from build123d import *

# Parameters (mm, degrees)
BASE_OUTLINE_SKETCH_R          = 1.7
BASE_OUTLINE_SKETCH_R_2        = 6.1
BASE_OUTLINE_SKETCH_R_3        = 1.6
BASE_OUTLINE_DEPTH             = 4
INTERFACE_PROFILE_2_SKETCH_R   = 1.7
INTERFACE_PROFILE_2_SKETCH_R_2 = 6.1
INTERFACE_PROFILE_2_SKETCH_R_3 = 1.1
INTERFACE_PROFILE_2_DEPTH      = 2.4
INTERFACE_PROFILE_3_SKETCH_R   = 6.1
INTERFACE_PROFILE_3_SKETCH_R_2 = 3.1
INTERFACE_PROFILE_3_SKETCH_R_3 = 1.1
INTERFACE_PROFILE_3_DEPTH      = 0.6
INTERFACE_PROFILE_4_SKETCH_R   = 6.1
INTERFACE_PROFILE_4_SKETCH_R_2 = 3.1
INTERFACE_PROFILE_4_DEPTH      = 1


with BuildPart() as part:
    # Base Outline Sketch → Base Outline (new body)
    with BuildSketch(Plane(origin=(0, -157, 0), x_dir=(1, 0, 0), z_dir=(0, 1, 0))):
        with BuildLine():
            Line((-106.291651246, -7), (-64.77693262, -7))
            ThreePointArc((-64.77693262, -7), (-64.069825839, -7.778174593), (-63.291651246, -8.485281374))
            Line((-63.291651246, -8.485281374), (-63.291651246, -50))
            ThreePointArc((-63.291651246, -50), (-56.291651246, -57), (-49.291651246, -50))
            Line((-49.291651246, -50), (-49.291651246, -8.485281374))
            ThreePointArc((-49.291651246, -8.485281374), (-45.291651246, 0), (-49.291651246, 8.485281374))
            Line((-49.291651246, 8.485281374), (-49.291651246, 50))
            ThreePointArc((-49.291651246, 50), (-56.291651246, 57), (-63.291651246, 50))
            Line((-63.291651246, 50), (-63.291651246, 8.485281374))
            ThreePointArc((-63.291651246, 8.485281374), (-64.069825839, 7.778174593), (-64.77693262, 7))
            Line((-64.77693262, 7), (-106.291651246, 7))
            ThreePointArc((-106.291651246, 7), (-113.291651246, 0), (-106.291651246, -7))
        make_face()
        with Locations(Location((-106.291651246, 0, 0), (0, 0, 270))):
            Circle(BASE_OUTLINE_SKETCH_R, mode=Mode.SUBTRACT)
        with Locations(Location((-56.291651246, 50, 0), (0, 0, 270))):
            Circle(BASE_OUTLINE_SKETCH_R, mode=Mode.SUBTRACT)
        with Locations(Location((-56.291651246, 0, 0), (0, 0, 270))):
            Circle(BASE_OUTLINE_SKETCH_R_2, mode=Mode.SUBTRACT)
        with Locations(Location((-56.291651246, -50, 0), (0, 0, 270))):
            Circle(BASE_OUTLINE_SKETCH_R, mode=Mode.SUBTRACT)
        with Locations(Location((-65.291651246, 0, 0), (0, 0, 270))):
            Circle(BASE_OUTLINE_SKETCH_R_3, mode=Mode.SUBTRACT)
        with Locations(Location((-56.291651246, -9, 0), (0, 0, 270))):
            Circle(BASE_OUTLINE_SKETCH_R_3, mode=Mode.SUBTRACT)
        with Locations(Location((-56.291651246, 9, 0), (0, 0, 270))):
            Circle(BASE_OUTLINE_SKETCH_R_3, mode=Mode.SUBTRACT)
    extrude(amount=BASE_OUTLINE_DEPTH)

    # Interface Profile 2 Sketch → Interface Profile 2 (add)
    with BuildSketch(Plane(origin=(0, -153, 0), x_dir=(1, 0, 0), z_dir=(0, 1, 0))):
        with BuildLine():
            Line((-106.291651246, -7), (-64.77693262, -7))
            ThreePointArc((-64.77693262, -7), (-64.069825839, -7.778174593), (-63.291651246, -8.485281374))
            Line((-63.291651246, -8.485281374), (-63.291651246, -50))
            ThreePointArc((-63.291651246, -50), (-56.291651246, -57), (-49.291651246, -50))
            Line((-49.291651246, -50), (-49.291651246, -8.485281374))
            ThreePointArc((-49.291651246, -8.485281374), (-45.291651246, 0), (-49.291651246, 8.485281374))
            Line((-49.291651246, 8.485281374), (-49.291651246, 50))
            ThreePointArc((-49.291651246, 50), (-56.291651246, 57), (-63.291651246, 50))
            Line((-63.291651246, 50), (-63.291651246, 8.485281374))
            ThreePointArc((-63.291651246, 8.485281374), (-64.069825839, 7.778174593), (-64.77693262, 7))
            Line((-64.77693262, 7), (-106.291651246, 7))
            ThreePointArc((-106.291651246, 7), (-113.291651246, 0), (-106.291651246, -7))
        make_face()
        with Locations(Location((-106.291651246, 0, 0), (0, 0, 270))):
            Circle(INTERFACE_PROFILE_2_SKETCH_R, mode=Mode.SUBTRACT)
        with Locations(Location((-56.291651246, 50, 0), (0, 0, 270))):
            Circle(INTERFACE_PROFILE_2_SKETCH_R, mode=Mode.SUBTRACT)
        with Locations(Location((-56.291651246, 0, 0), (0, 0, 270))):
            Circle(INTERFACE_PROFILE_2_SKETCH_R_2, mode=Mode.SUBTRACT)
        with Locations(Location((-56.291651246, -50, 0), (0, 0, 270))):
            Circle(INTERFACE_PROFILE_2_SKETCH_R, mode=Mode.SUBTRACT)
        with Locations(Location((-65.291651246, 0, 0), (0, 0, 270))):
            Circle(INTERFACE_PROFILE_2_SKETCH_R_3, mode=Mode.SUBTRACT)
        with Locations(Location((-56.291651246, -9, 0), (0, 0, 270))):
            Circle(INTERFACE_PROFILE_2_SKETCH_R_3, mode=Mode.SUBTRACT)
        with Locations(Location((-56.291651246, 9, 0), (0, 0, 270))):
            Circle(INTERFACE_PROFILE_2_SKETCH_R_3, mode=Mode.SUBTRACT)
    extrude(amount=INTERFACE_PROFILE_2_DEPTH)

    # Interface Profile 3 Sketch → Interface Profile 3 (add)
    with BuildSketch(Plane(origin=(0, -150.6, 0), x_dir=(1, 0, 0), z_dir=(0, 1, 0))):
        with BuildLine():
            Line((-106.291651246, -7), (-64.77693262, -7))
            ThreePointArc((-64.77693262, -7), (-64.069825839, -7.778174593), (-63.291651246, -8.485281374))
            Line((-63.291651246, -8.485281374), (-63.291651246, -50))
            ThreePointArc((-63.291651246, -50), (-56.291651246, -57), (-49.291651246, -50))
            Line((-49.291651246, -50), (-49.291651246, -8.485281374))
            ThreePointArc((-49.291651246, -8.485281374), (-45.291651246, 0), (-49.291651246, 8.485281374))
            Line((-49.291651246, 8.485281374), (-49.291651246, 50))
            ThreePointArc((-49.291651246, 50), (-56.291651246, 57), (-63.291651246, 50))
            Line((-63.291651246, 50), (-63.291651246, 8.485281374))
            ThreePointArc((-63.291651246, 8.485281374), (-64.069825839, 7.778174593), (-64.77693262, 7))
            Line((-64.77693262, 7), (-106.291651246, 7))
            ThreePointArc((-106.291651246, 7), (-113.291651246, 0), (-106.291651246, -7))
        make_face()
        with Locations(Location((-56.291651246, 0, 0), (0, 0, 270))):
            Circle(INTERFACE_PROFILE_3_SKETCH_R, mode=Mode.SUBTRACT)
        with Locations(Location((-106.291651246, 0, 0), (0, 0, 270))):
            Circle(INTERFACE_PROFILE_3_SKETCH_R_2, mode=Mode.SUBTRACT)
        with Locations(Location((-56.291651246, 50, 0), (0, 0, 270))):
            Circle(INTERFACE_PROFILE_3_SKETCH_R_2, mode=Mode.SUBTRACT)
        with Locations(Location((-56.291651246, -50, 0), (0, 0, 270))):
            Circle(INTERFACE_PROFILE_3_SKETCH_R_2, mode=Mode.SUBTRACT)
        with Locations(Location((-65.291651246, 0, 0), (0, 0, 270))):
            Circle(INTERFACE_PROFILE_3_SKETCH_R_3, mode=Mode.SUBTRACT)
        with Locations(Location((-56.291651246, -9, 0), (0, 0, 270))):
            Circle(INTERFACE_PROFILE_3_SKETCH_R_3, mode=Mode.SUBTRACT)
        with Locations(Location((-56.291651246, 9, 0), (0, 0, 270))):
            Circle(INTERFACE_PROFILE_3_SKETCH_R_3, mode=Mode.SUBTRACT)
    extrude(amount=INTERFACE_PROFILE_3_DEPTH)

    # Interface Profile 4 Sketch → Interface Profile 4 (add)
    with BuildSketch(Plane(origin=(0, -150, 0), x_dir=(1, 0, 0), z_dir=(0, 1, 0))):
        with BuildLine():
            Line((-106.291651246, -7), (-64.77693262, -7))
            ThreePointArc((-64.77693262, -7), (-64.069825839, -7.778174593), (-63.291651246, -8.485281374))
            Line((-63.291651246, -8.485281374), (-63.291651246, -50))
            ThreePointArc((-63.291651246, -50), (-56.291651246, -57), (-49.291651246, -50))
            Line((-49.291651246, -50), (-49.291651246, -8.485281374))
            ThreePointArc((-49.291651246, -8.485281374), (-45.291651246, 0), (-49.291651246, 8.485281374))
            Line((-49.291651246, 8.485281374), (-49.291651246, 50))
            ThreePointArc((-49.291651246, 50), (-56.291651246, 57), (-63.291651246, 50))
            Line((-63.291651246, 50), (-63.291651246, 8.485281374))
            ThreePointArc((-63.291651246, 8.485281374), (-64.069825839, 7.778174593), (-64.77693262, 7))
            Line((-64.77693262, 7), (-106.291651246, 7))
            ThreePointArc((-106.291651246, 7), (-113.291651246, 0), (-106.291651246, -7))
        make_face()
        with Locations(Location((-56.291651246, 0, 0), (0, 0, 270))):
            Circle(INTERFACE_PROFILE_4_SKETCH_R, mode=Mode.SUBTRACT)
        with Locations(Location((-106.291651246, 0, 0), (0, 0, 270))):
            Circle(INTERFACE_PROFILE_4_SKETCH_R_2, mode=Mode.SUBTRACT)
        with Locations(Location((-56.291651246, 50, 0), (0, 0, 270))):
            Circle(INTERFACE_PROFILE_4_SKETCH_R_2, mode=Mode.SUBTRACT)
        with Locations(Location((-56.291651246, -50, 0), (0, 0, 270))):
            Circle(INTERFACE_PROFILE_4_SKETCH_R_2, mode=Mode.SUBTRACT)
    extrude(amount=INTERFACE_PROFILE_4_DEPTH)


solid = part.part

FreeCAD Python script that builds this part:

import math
import FreeCAD as App
import Part
import Sketcher
Q = App.Units.Quantity

doc = App.newDocument("Part")
body = doc.addObject("PartDesign::Body", "Body")

# Sketch on XZ plane
sketch1 = body.newObject("Sketcher::SketchObject", "Sketch")
sketch1.AttachmentSupport = (doc.getObject("XZ_Plane"), [""])
sketch1.MapMode = "FlatFace"
sketch1.AttachmentOffset = App.Placement(App.Vector(0, 0, 157), App.Rotation())
sketch1.addGeometry([
    Part.LineSegment(App.Vector(-106.291651, 7, 0), App.Vector(-64.776933, 7, 0)),  # 0
    Part.ArcOfCircle(Part.Circle(App.Vector(-56.291651, 0, 0), App.Vector(0, 0, 1), 11), math.radians(129.521196), math.radians(140.478804)),  # 1
    Part.LineSegment(App.Vector(-63.291651, 8.485281, 0), App.Vector(-63.291651, 50, 0)),  # 2
    Part.ArcOfCircle(Part.Circle(App.Vector(-56.291651, 50, 0), App.Vector(0, 0, 1), 7), math.radians(0), math.radians(180)),  # 3
    Part.LineSegment(App.Vector(-49.291651, 50, 0), App.Vector(-49.291651, 8.485281, 0)),  # 4
    Part.ArcOfCircle(Part.Circle(App.Vector(-56.291651, 0, 0), App.Vector(0, 0, 1), 11), math.radians(-50.478804), math.radians(50.478804)),  # 5
    Part.LineSegment(App.Vector(-49.291651, -8.485281, 0), App.Vector(-49.291651, -50, 0)),  # 6
    Part.ArcOfCircle(Part.Circle(App.Vector(-56.291651, -50, 0), App.Vector(0, 0, 1), 7), math.radians(180), math.radians(360)),  # 7
    Part.LineSegment(App.Vector(-63.291651, -50, 0), App.Vector(-63.291651, -8.485281, 0)),  # 8
    Part.ArcOfCircle(Part.Circle(App.Vector(-56.291651, 0, 0), App.Vector(0, 0, 1), 11), math.radians(-140.478804), math.radians(-129.521196)),  # 9
    Part.LineSegment(App.Vector(-64.776933, -7, 0), App.Vector(-106.291651, -7, 0)),  # 10
    Part.ArcOfCircle(Part.Circle(App.Vector(-106.291651, 0, 0), App.Vector(0, 0, 1), 7), math.radians(90), math.radians(270)),  # 11
    Part.Circle(App.Vector(-56.291651, 50, 0), App.Vector(0, 0, 1), 1.7),  # 12
    Part.Circle(App.Vector(-56.291651, 9, 0), App.Vector(0, 0, 1), 1.6),  # 13
    Part.Circle(App.Vector(-106.291651, 0, 0), App.Vector(0, 0, 1), 1.7),  # 14
    Part.Circle(App.Vector(-65.291651, 0, 0), App.Vector(0, 0, 1), 1.6),  # 15
    Part.Circle(App.Vector(-56.291651, 0, 0), App.Vector(0, 0, 1), 6.1),  # 16
    Part.Circle(App.Vector(-56.291651, -9, 0), App.Vector(0, 0, 1), 1.6),  # 17
    Part.Circle(App.Vector(-56.291651, -50, 0), App.Vector(0, 0, 1), 1.7),  # 18
], False)
sketch1.addConstraint([
    Sketcher.Constraint("Coincident", 0, 2, 1, 2),
    Sketcher.Constraint("Coincident", 1, 1, 2, 1),
    Sketcher.Constraint("Tangent", 2, 2, 3, 2),
    Sketcher.Constraint("Tangent", 3, 1, 4, 1),
    Sketcher.Constraint("Coincident", 4, 2, 5, 2),
    Sketcher.Constraint("Coincident", 5, 1, 6, 1),
    Sketcher.Constraint("Tangent", 6, 2, 7, 2),
    Sketcher.Constraint("Tangent", 7, 1, 8, 1),
    Sketcher.Constraint("Coincident", 8, 2, 9, 2),
    Sketcher.Constraint("Coincident", 9, 1, 10, 1),
    Sketcher.Constraint("Tangent", 10, 2, 11, 2),
    Sketcher.Constraint("Tangent", 11, 1, 0, 1),
    Sketcher.Constraint("Horizontal", 0),
    Sketcher.Constraint("Vertical", 2),
    Sketcher.Constraint("Vertical", 4),
    Sketcher.Constraint("Vertical", 6),
    Sketcher.Constraint("Vertical", 8),
    Sketcher.Constraint("Horizontal", 10),
    Sketcher.Constraint("Coincident", 5, 3, 1, 3),
    Sketcher.Constraint("Coincident", 9, 3, 1, 3),
    Sketcher.Constraint("Coincident", 12, 3, 3, 3),
    Sketcher.Constraint("Coincident", 14, 3, 11, 3),
    Sketcher.Constraint("Coincident", 16, 3, 1, 3),
    Sketcher.Constraint("Coincident", 18, 3, 7, 3),
    Sketcher.Constraint("Equal", 1, 5),
    Sketcher.Constraint("Equal", 3, 7),
    Sketcher.Constraint("Equal", 5, 9),
    Sketcher.Constraint("Equal", 7, 11),
    Sketcher.Constraint("Equal", 12, 14),
    Sketcher.Constraint("Equal", 13, 15),
    Sketcher.Constraint("Equal", 15, 17),
    Sketcher.Constraint("Equal", 14, 18),
    Sketcher.Constraint("Symmetric", 3, 3, 7, 3, -1),
    Sketcher.Constraint("Symmetric", 13, 3, 17, 3, -1),
    Sketcher.Constraint("Symmetric", 0, 2, 9, 1, -1),
    Sketcher.Constraint("PointOnObject", 15, 3, -1),
    Sketcher.Constraint("Horizontal", 1, 1, 4, 2),
    Sketcher.Constraint("Vertical", 12, 3, 13, 3),
    Sketcher.Constraint("Equal", 10, 2),
    Sketcher.Constraint("Radius", 1, Q("11 mm")),
    Sketcher.Constraint("Radius", 3, Q("7 mm")),
    Sketcher.Constraint("Diameter", 12, Q("3.4 mm")),
    Sketcher.Constraint("Diameter", 13, Q("3.2 mm")),
    Sketcher.Constraint("Diameter", 16, Q("12.2 mm")),
    Sketcher.Constraint("DistanceY", -1, 1, 3, 3, Q("50 mm")),
    Sketcher.Constraint("DistanceY", -1, 1, 13, 3, Q("9 mm")),
    Sketcher.Constraint("DistanceX", 15, 3, 1, 3, Q("9 mm")),
    Sketcher.Constraint("DistanceX", 1, 3, -1, 1, Q("56.291651 mm")),
])
pad1 = body.newObject("PartDesign::Pad", "Pad")
pad1.Profile = sketch1
pad1.Length = 4
pad1.Reversed = True

# Sketch on XZ plane
sketch2 = body.newObject("Sketcher::SketchObject", "Sketch001")
sketch2.AttachmentSupport = (doc.getObject("XZ_Plane"), [""])
sketch2.MapMode = "FlatFace"
sketch2.AttachmentOffset = App.Placement(App.Vector(0, 0, 153), App.Rotation())
sketch2.addGeometry([
    Part.LineSegment(App.Vector(-106.291651, 7, 0), App.Vector(-64.776933, 7, 0)),  # 0
    Part.ArcOfCircle(Part.Circle(App.Vector(-56.291651, 0, 0), App.Vector(0, 0, 1), 11), math.radians(129.521196), math.radians(140.478804)),  # 1
    Part.LineSegment(App.Vector(-63.291651, 8.485281, 0), App.Vector(-63.291651, 50, 0)),  # 2
    Part.ArcOfCircle(Part.Circle(App.Vector(-56.291651, 50, 0), App.Vector(0, 0, 1), 7), math.radians(0), math.radians(180)),  # 3
    Part.LineSegment(App.Vector(-49.291651, 50, 0), App.Vector(-49.291651, 8.485281, 0)),  # 4
    Part.ArcOfCircle(Part.Circle(App.Vector(-56.291651, 0, 0), App.Vector(0, 0, 1), 11), math.radians(-50.478804), math.radians(50.478804)),  # 5
    Part.LineSegment(App.Vector(-49.291651, -8.485281, 0), App.Vector(-49.291651, -50, 0)),  # 6
    Part.ArcOfCircle(Part.Circle(App.Vector(-56.291651, -50, 0), App.Vector(0, 0, 1), 7), math.radians(180), math.radians(360)),  # 7
    Part.LineSegment(App.Vector(-63.291651, -50, 0), App.Vector(-63.291651, -8.485281, 0)),  # 8
    Part.ArcOfCircle(Part.Circle(App.Vector(-56.291651, 0, 0), App.Vector(0, 0, 1), 11), math.radians(-140.478804), math.radians(-129.521196)),  # 9
    Part.LineSegment(App.Vector(-64.776933, -7, 0), App.Vector(-106.291651, -7, 0)),  # 10
    Part.ArcOfCircle(Part.Circle(App.Vector(-106.291651, 0, 0), App.Vector(0, 0, 1), 7), math.radians(90), math.radians(270)),  # 11
    Part.Circle(App.Vector(-56.291651, 50, 0), App.Vector(0, 0, 1), 1.7),  # 12
    Part.Circle(App.Vector(-56.291651, 9, 0), App.Vector(0, 0, 1), 1.1),  # 13
    Part.Circle(App.Vector(-106.291651, 0, 0), App.Vector(0, 0, 1), 1.7),  # 14
    Part.Circle(App.Vector(-65.291651, 0, 0), App.Vector(0, 0, 1), 1.1),  # 15
    Part.Circle(App.Vector(-56.291651, 0, 0), App.Vector(0, 0, 1), 6.1),  # 16
    Part.Circle(App.Vector(-56.291651, -9, 0), App.Vector(0, 0, 1), 1.1),  # 17
    Part.Circle(App.Vector(-56.291651, -50, 0), App.Vector(0, 0, 1), 1.7),  # 18
], False)
sketch2.addConstraint([
    Sketcher.Constraint("Coincident", 0, 2, 1, 2),
    Sketcher.Constraint("Coincident", 1, 1, 2, 1),
    Sketcher.Constraint("Tangent", 2, 2, 3, 2),
    Sketcher.Constraint("Tangent", 3, 1, 4, 1),
    Sketcher.Constraint("Coincident", 4, 2, 5, 2),
    Sketcher.Constraint("Coincident", 5, 1, 6, 1),
    Sketcher.Constraint("Tangent", 6, 2, 7, 2),
    Sketcher.Constraint("Tangent", 7, 1, 8, 1),
    Sketcher.Constraint("Coincident", 8, 2, 9, 2),
    Sketcher.Constraint("Coincident", 9, 1, 10, 1),
    Sketcher.Constraint("Tangent", 10, 2, 11, 2),
    Sketcher.Constraint("Tangent", 11, 1, 0, 1),
    Sketcher.Constraint("Horizontal", 0),
    Sketcher.Constraint("Vertical", 2),
    Sketcher.Constraint("Vertical", 4),
    Sketcher.Constraint("Vertical", 6),
    Sketcher.Constraint("Vertical", 8),
    Sketcher.Constraint("Horizontal", 10),
    Sketcher.Constraint("Coincident", 5, 3, 1, 3),
    Sketcher.Constraint("Coincident", 9, 3, 1, 3),
    Sketcher.Constraint("Coincident", 12, 3, 3, 3),
    Sketcher.Constraint("Coincident", 14, 3, 11, 3),
    Sketcher.Constraint("Coincident", 16, 3, 1, 3),
    Sketcher.Constraint("Coincident", 18, 3, 7, 3),
    Sketcher.Constraint("Equal", 1, 5),
    Sketcher.Constraint("Equal", 3, 7),
    Sketcher.Constraint("Equal", 5, 9),
    Sketcher.Constraint("Equal", 7, 11),
    Sketcher.Constraint("Equal", 12, 14),
    Sketcher.Constraint("Equal", 13, 15),
    Sketcher.Constraint("Equal", 15, 17),
    Sketcher.Constraint("Equal", 14, 18),
    Sketcher.Constraint("Symmetric", 3, 3, 7, 3, -1),
    Sketcher.Constraint("Symmetric", 13, 3, 17, 3, -1),
    Sketcher.Constraint("Symmetric", 0, 2, 9, 1, -1),
    Sketcher.Constraint("PointOnObject", 15, 3, -1),
    Sketcher.Constraint("Horizontal", 1, 1, 4, 2),
    Sketcher.Constraint("Vertical", 12, 3, 13, 3),
    Sketcher.Constraint("Equal", 10, 2),
    Sketcher.Constraint("Radius", 1, Q("11 mm")),
    Sketcher.Constraint("Radius", 3, Q("7 mm")),
    Sketcher.Constraint("Diameter", 12, Q("3.4 mm")),
    Sketcher.Constraint("Diameter", 13, Q("2.2 mm")),
    Sketcher.Constraint("Diameter", 16, Q("12.2 mm")),
    Sketcher.Constraint("DistanceY", -1, 1, 3, 3, Q("50 mm")),
    Sketcher.Constraint("DistanceY", -1, 1, 13, 3, Q("9 mm")),
    Sketcher.Constraint("DistanceX", 15, 3, 1, 3, Q("9 mm")),
    Sketcher.Constraint("DistanceX", 1, 3, -1, 1, Q("56.291651 mm")),
])
pad2 = body.newObject("PartDesign::Pad", "Pad001")
pad2.Profile = sketch2
pad2.Length = 2.4
pad2.Reversed = True

# Sketch on XZ plane
sketch3 = body.newObject("Sketcher::SketchObject", "Sketch002")
sketch3.AttachmentSupport = (doc.getObject("XZ_Plane"), [""])
sketch3.MapMode = "FlatFace"
sketch3.AttachmentOffset = App.Placement(App.Vector(0, 0, 150.6), App.Rotation())
sketch3.addGeometry([
    Part.LineSegment(App.Vector(-106.291651, 7, 0), App.Vector(-64.776933, 7, 0)),  # 0
    Part.ArcOfCircle(Part.Circle(App.Vector(-56.291651, 0, 0), App.Vector(0, 0, 1), 11), math.radians(129.521196), math.radians(140.478804)),  # 1
    Part.LineSegment(App.Vector(-63.291651, 8.485281, 0), App.Vector(-63.291651, 50, 0)),  # 2
    Part.ArcOfCircle(Part.Circle(App.Vector(-56.291651, 50, 0), App.Vector(0, 0, 1), 7), math.radians(0), math.radians(180)),  # 3
    Part.LineSegment(App.Vector(-49.291651, 50, 0), App.Vector(-49.291651, 8.485281, 0)),  # 4
    Part.ArcOfCircle(Part.Circle(App.Vector(-56.291651, 0, 0), App.Vector(0, 0, 1), 11), math.radians(-50.478804), math.radians(50.478804)),  # 5
    Part.LineSegment(App.Vector(-49.291651, -8.485281, 0), App.Vector(-49.291651, -50, 0)),  # 6
    Part.ArcOfCircle(Part.Circle(App.Vector(-56.291651, -50, 0), App.Vector(0, 0, 1), 7), math.radians(180), math.radians(360)),  # 7
    Part.LineSegment(App.Vector(-63.291651, -50, 0), App.Vector(-63.291651, -8.485281, 0)),  # 8
    Part.ArcOfCircle(Part.Circle(App.Vector(-56.291651, 0, 0), App.Vector(0, 0, 1), 11), math.radians(-140.478804), math.radians(-129.521196)),  # 9
    Part.LineSegment(App.Vector(-64.776933, -7, 0), App.Vector(-106.291651, -7, 0)),  # 10
    Part.ArcOfCircle(Part.Circle(App.Vector(-106.291651, 0, 0), App.Vector(0, 0, 1), 7), math.radians(90), math.radians(270)),  # 11
    Part.Circle(App.Vector(-56.291651, 50, 0), App.Vector(0, 0, 1), 3.1),  # 12
    Part.Circle(App.Vector(-56.291651, 9, 0), App.Vector(0, 0, 1), 1.1),  # 13
    Part.Circle(App.Vector(-106.291651, 0, 0), App.Vector(0, 0, 1), 3.1),  # 14
    Part.Circle(App.Vector(-65.291651, 0, 0), App.Vector(0, 0, 1), 1.1),  # 15
    Part.Circle(App.Vector(-56.291651, 0, 0), App.Vector(0, 0, 1), 6.1),  # 16
    Part.Circle(App.Vector(-56.291651, -9, 0), App.Vector(0, 0, 1), 1.1),  # 17
    Part.Circle(App.Vector(-56.291651, -50, 0), App.Vector(0, 0, 1), 3.1),  # 18
], False)
sketch3.addConstraint([
    Sketcher.Constraint("Coincident", 0, 2, 1, 2),
    Sketcher.Constraint("Coincident", 1, 1, 2, 1),
    Sketcher.Constraint("Tangent", 2, 2, 3, 2),
    Sketcher.Constraint("Tangent", 3, 1, 4, 1),
    Sketcher.Constraint("Coincident", 4, 2, 5, 2),
    Sketcher.Constraint("Coincident", 5, 1, 6, 1),
    Sketcher.Constraint("Tangent", 6, 2, 7, 2),
    Sketcher.Constraint("Tangent", 7, 1, 8, 1),
    Sketcher.Constraint("Coincident", 8, 2, 9, 2),
    Sketcher.Constraint("Coincident", 9, 1, 10, 1),
    Sketcher.Constraint("Tangent", 10, 2, 11, 2),
    Sketcher.Constraint("Tangent", 11, 1, 0, 1),
    Sketcher.Constraint("Horizontal", 0),
    Sketcher.Constraint("Vertical", 2),
    Sketcher.Constraint("Vertical", 4),
    Sketcher.Constraint("Vertical", 6),
    Sketcher.Constraint("Vertical", 8),
    Sketcher.Constraint("Horizontal", 10),
    Sketcher.Constraint("Coincident", 5, 3, 1, 3),
    Sketcher.Constraint("Coincident", 9, 3, 1, 3),
    Sketcher.Constraint("Coincident", 12, 3, 3, 3),
    Sketcher.Constraint("Coincident", 14, 3, 11, 3),
    Sketcher.Constraint("Coincident", 16, 3, 1, 3),
    Sketcher.Constraint("Coincident", 18, 3, 7, 3),
    Sketcher.Constraint("Equal", 1, 5),
    Sketcher.Constraint("Equal", 3, 7),
    Sketcher.Constraint("Equal", 5, 9),
    Sketcher.Constraint("Equal", 7, 11),
    Sketcher.Constraint("Equal", 12, 14),
    Sketcher.Constraint("Equal", 13, 15),
    Sketcher.Constraint("Equal", 15, 17),
    Sketcher.Constraint("Equal", 14, 18),
    Sketcher.Constraint("Symmetric", 3, 3, 7, 3, -1),
    Sketcher.Constraint("Symmetric", 13, 3, 17, 3, -1),
    Sketcher.Constraint("Symmetric", 0, 2, 9, 1, -1),
    Sketcher.Constraint("PointOnObject", 15, 3, -1),
    Sketcher.Constraint("Horizontal", 1, 1, 4, 2),
    Sketcher.Constraint("Vertical", 12, 3, 13, 3),
    Sketcher.Constraint("Equal", 10, 2),
    Sketcher.Constraint("Radius", 1, Q("11 mm")),
    Sketcher.Constraint("Radius", 3, Q("7 mm")),
    Sketcher.Constraint("Diameter", 12, Q("6.2 mm")),
    Sketcher.Constraint("Diameter", 13, Q("2.2 mm")),
    Sketcher.Constraint("Diameter", 16, Q("12.2 mm")),
    Sketcher.Constraint("DistanceY", -1, 1, 3, 3, Q("50 mm")),
    Sketcher.Constraint("DistanceY", -1, 1, 13, 3, Q("9 mm")),
    Sketcher.Constraint("DistanceX", 15, 3, 1, 3, Q("9 mm")),
    Sketcher.Constraint("DistanceX", 1, 3, -1, 1, Q("56.291651 mm")),
])
pad3 = body.newObject("PartDesign::Pad", "Pad002")
pad3.Profile = sketch3
pad3.Length = 0.6
pad3.Reversed = True

# Sketch on XZ plane
sketch4 = body.newObject("Sketcher::SketchObject", "Sketch003")
sketch4.AttachmentSupport = (doc.getObject("XZ_Plane"), [""])
sketch4.MapMode = "FlatFace"
sketch4.AttachmentOffset = App.Placement(App.Vector(0, 0, 150), App.Rotation())
sketch4.addGeometry([
    Part.LineSegment(App.Vector(-106.291651, 7, 0), App.Vector(-64.776933, 7, 0)),  # 0
    Part.ArcOfCircle(Part.Circle(App.Vector(-56.291651, 0, 0), App.Vector(0, 0, 1), 11), math.radians(129.521196), math.radians(140.478804)),  # 1
    Part.LineSegment(App.Vector(-63.291651, 8.485281, 0), App.Vector(-63.291651, 50, 0)),  # 2
    Part.ArcOfCircle(Part.Circle(App.Vector(-56.291651, 50, 0), App.Vector(0, 0, 1), 7), math.radians(0), math.radians(180)),  # 3
    Part.LineSegment(App.Vector(-49.291651, 50, 0), App.Vector(-49.291651, 8.485281, 0)),  # 4
    Part.ArcOfCircle(Part.Circle(App.Vector(-56.291651, 0, 0), App.Vector(0, 0, 1), 11), math.radians(-50.478804), math.radians(50.478804)),  # 5
    Part.LineSegment(App.Vector(-49.291651, -8.485281, 0), App.Vector(-49.291651, -50, 0)),  # 6
    Part.ArcOfCircle(Part.Circle(App.Vector(-56.291651, -50, 0), App.Vector(0, 0, 1), 7), math.radians(180), math.radians(360)),  # 7
    Part.LineSegment(App.Vector(-63.291651, -50, 0), App.Vector(-63.291651, -8.485281, 0)),  # 8
    Part.ArcOfCircle(Part.Circle(App.Vector(-56.291651, 0, 0), App.Vector(0, 0, 1), 11), math.radians(-140.478804), math.radians(-129.521196)),  # 9
    Part.LineSegment(App.Vector(-64.776933, -7, 0), App.Vector(-106.291651, -7, 0)),  # 10
    Part.ArcOfCircle(Part.Circle(App.Vector(-106.291651, 0, 0), App.Vector(0, 0, 1), 7), math.radians(90), math.radians(270)),  # 11
    Part.Circle(App.Vector(-56.291651, 50, 0), App.Vector(0, 0, 1), 3.1),  # 12
    Part.Circle(App.Vector(-106.291651, 0, 0), App.Vector(0, 0, 1), 3.1),  # 13
    Part.Circle(App.Vector(-56.291651, 0, 0), App.Vector(0, 0, 1), 6.1),  # 14
    Part.Circle(App.Vector(-56.291651, -50, 0), App.Vector(0, 0, 1), 3.1),  # 15
], False)
sketch4.addConstraint([
    Sketcher.Constraint("Coincident", 0, 2, 1, 2),
    Sketcher.Constraint("Coincident", 1, 1, 2, 1),
    Sketcher.Constraint("Tangent", 2, 2, 3, 2),
    Sketcher.Constraint("Tangent", 3, 1, 4, 1),
    Sketcher.Constraint("Coincident", 4, 2, 5, 2),
    Sketcher.Constraint("Coincident", 5, 1, 6, 1),
    Sketcher.Constraint("Tangent", 6, 2, 7, 2),
    Sketcher.Constraint("Tangent", 7, 1, 8, 1),
    Sketcher.Constraint("Coincident", 8, 2, 9, 2),
    Sketcher.Constraint("Coincident", 9, 1, 10, 1),
    Sketcher.Constraint("Tangent", 10, 2, 11, 2),
    Sketcher.Constraint("Tangent", 11, 1, 0, 1),
    Sketcher.Constraint("Horizontal", 0),
    Sketcher.Constraint("Vertical", 2),
    Sketcher.Constraint("Vertical", 4),
    Sketcher.Constraint("Vertical", 6),
    Sketcher.Constraint("Vertical", 8),
    Sketcher.Constraint("Horizontal", 10),
    Sketcher.Constraint("Coincident", 5, 3, 1, 3),
    Sketcher.Constraint("Coincident", 9, 3, 1, 3),
    Sketcher.Constraint("Coincident", 12, 3, 3, 3),
    Sketcher.Constraint("Coincident", 13, 3, 11, 3),
    Sketcher.Constraint("Coincident", 14, 3, 1, 3),
    Sketcher.Constraint("Coincident", 15, 3, 7, 3),
    Sketcher.Constraint("Equal", 1, 5),
    Sketcher.Constraint("Equal", 3, 7),
    Sketcher.Constraint("Equal", 5, 9),
    Sketcher.Constraint("Equal", 7, 11),
    Sketcher.Constraint("Equal", 12, 13),
    Sketcher.Constraint("Equal", 13, 15),
    Sketcher.Constraint("Symmetric", 3, 3, 7, 3, -1),
    Sketcher.Constraint("Symmetric", 0, 2, 9, 1, -1),
    Sketcher.Constraint("Horizontal", 1, 1, 4, 2),
    Sketcher.Constraint("Equal", 10, 2),
    Sketcher.Constraint("Radius", 1, Q("11 mm")),
    Sketcher.Constraint("Radius", 3, Q("7 mm")),
    Sketcher.Constraint("Diameter", 12, Q("6.2 mm")),
    Sketcher.Constraint("Diameter", 14, Q("12.2 mm")),
    Sketcher.Constraint("DistanceY", -1, 1, 3, 3, Q("50 mm")),
    Sketcher.Constraint("DistanceX", 1, 3, -1, 1, Q("56.291651 mm")),
])
pad4 = body.newObject("PartDesign::Pad", "Pad003")
pad4.Profile = sketch4
pad4.Length = 1
pad4.Reversed = True

doc.recompute()
